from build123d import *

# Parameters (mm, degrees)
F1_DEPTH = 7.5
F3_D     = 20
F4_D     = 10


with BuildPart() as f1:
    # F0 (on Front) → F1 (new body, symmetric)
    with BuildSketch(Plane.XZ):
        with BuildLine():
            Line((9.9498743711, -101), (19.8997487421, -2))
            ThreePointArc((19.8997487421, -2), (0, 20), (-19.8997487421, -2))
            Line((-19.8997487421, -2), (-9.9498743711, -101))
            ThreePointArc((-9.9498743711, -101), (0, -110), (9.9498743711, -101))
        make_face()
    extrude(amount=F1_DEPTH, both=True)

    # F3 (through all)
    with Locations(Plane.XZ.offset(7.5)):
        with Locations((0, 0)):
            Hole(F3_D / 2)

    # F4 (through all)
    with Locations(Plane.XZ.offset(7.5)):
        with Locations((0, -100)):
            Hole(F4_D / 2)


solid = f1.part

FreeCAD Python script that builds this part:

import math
import FreeCAD as App
import Part
import Sketcher
from FreeCAD import Vector

doc = App.newDocument("Part")
params = doc.addObject("Spreadsheet::Sheet", "Params")
for row, (alias, value) in enumerate([
    ("sketch1_radius", "20 mm"),
    ("sketch1_radius2", "10 mm"),
    ("pad1_length", "15 mm"),
    ("sketch2_diameter", "20 mm"),
    ("hole_diameter", "20 mm"),
    ("sketch3_diameter", "10 mm"),
    ("hole2_diameter", "10 mm"),
], start=1):
    params.set(f"A{row}", alias)
    params.set(f"B{row}", "=" + value)
    params.setAlias(f"B{row}", alias)

body = doc.addObject("PartDesign::Body", "Body")

# Sketch on XZ plane
sketch1 = doc.addObject("Sketcher::SketchObject", "Sketch")
body.addObject(sketch1)
sketch1.AttachmentSupport = (doc.XZ_Plane, [""])
sketch1.MapMode = "FlatFace"
sketch1.addGeometry(Part.LineSegment(Vector(10, -101, 0), Vector(20, -2, 0)), False)
sketch1.addGeometry(Part.ArcOfCircle(Part.Circle(Vector(0, 0, 0), Vector(0, 0, 1), 20), math.radians(-6), math.radians(186)), False)
sketch1.addGeometry(Part.LineSegment(Vector(-20, -2, 0), Vector(-10, -101, 0)), False)
sketch1.addGeometry(Part.ArcOfCircle(Part.Circle(Vector(0, -100, 0), Vector(0, 0, 1), 10), math.radians(-174), math.radians(-6)), False)
sketch1.addConstraint(Sketcher.Constraint("Tangent", 0, 2, 1, 1))
sketch1.addConstraint(Sketcher.Constraint("Tangent", 1, 2, 2, 1))
sketch1.addConstraint(Sketcher.Constraint("Tangent", 2, 2, 3, 1))
sketch1.addConstraint(Sketcher.Constraint("Tangent", 3, 2, 0, 1))
sketch1.addConstraint(Sketcher.Constraint("Coincident", 1, 3, -1, 1))
sketch1.addConstraint(Sketcher.Constraint("PointOnObject", 3, 3, -2))
sketch1.addConstraint(Sketcher.Constraint("Radius", 1, 20.0))
sketch1.addConstraint(Sketcher.Constraint("Radius", 3, 10.0))
sketch1.addConstraint(Sketcher.Constraint("DistanceY", 3, 3, -1, 1, 100.0))
sketch1.setExpression("Constraints[6]", "Params.sketch1_radius")
sketch1.setExpression("Constraints[7]", "Params.sketch1_radius2")
pad1 = doc.addObject("PartDesign::Pad", "Pad")
body.addObject(pad1)
pad1.Profile = sketch1
pad1.setExpression("Length", "Params.pad1_length")
pad1.Midplane = True

# Sketch on XZ plane
sketch2 = doc.addObject("Sketcher::SketchObject", "Sketch001")
body.addObject(sketch2)
sketch2.AttachmentSupport = (doc.XZ_Plane, [""])
sketch2.MapMode = "FlatFace"
sketch2.AttachmentOffset = App.Placement(Vector(0, 0, 7.5), App.Rotation())
sketch2.addGeometry(Part.Circle(Vector(0, 0, 0), Vector(0, 0, 1), 10), False)
sketch2.addConstraint(Sketcher.Constraint("Coincident", 0, 3, -1, 1))
sketch2.addConstraint(Sketcher.Constraint("Diameter", 0, 20.0))
sketch2.setExpression("Constraints[1]", "Params.sketch2_diameter")
doc.recompute()
hole = doc.addObject("PartDesign::Hole", "Hole")
body.addObject(hole)
hole.Profile = sketch2
hole.ThreadType = "None"
hole.setExpression("Diameter", "Params.hole_diameter")
hole.DepthType = "ThroughAll"

# Sketch on XZ plane
sketch3 = doc.addObject("Sketcher::SketchObject", "Sketch002")
body.addObject(sketch3)
sketch3.AttachmentSupport = (doc.XZ_Plane, [""])
sketch3.MapMode = "FlatFace"
sketch3.AttachmentOffset = App.Placement(Vector(0, 0, 7.5), App.Rotation())
sketch3.addGeometry(Part.Circle(Vector(0, -100, 0), Vector(0, 0, 1), 5), False)
sketch3.addConstraint(Sketcher.Constraint("PointOnObject", 0, 3, -2))
sketch3.addConstraint(Sketcher.Constraint("Diameter", 0, 10.0))
sketch3.addConstraint(Sketcher.Constraint("DistanceY", 0, 3, -1, 1, 100.0))
sketch3.setExpression("Constraints[1]", "Params.sketch3_diameter")
doc.recompute()
hole2 = doc.addObject("PartDesign::Hole", "Hole001")
body.addObject(hole2)
hole2.Profile = sketch3
hole2.ThreadType = "None"
hole2.setExpression("Diameter", "Params.hole2_diameter")
hole2.DepthType = "ThroughAll"

doc.recompute()
